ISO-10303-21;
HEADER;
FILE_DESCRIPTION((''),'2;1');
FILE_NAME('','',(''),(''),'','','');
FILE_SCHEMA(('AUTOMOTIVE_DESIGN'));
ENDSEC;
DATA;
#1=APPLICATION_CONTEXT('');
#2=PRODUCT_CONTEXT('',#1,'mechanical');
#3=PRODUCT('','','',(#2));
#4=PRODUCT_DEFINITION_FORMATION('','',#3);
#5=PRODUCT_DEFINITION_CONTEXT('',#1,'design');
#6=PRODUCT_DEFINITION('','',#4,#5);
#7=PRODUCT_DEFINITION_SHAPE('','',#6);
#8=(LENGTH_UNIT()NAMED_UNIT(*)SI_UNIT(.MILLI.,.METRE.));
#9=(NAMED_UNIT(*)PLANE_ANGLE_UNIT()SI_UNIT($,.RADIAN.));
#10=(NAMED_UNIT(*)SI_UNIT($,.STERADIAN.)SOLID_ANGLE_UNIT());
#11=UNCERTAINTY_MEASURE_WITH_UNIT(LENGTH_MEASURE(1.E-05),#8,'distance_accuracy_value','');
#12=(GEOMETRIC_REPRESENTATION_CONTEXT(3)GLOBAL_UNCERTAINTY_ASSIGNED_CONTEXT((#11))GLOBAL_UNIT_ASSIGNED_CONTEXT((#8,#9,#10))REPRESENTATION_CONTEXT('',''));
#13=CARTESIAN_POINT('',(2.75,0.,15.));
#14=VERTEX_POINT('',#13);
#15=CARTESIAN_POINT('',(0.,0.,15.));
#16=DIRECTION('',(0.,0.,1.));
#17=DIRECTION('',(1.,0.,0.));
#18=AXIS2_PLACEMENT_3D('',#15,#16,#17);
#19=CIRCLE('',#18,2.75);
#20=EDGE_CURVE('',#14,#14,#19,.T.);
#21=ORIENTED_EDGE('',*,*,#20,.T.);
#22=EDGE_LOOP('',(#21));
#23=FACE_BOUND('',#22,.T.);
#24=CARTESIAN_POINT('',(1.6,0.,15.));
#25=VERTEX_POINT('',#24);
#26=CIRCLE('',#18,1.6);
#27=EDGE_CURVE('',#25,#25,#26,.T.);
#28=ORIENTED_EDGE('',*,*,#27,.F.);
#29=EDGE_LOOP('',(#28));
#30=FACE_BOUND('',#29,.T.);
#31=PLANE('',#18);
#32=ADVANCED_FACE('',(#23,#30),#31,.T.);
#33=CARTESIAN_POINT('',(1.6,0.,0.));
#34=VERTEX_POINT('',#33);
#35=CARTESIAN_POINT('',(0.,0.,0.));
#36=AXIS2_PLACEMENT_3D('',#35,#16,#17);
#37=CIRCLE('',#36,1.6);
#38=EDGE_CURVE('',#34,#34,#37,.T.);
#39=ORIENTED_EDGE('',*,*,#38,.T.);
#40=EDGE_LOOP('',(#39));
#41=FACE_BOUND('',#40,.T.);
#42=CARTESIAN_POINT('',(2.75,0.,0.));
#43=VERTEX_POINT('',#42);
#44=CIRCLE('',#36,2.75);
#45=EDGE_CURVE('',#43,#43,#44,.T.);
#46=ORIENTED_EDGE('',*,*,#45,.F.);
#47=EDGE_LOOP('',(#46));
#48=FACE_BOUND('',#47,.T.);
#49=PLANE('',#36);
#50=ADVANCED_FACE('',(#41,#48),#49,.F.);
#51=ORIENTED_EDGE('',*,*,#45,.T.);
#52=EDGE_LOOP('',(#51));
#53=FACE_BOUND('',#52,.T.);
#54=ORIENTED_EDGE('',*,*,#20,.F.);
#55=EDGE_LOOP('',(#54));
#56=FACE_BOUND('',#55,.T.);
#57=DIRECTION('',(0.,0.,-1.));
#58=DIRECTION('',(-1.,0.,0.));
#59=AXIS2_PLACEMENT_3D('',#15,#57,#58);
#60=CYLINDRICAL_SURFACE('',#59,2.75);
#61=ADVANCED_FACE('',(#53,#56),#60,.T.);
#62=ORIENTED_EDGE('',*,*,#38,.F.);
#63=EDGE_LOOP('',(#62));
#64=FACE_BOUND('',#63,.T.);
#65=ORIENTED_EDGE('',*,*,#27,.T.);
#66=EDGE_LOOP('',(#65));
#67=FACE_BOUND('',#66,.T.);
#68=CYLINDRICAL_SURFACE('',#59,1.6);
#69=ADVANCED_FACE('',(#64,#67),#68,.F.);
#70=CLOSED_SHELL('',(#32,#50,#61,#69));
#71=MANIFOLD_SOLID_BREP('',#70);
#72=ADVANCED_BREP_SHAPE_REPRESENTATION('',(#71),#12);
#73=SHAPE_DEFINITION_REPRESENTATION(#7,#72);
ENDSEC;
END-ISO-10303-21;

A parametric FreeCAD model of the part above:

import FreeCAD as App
import Part
import Sketcher

doc = App.newDocument("Part")
params = doc.addObject("Spreadsheet::Sheet", "Params")
for row, (alias, value) in enumerate([
    ("sketch1_diameter", "5.5 mm"),
    ("sketch1_diameter2", "3.2 mm"),
    ("pad1_length", "15 mm"),
], start=1):
    params.set(f"A{row}", alias)
    params.set(f"B{row}", "=" + value)
    params.setAlias(f"B{row}", alias)

body = doc.addObject("PartDesign::Body", "Body")

# Sketch on XY plane
sketch1 = doc.addObject("Sketcher::SketchObject", "Sketch")
body.addObject(sketch1)
sketch1.AttachmentSupport = (doc.XY_Plane, [""])
sketch1.MapMode = "FlatFace"
sketch1.addGeometry([
    Part.Circle(App.Vector(0, 0, 0), App.Vector(0, 0, 1), 2.8),
    Part.Circle(App.Vector(0, 0, 0), App.Vector(0, 0, 1), 1.6),
], False)
sketch1.addConstraint([
    Sketcher.Constraint("Coincident", 0, 3, -1, 1),
    Sketcher.Constraint("Coincident", 1, 3, -1, 1),
    Sketcher.Constraint("Diameter", 0, 5.5),
    Sketcher.Constraint("Diameter", 1, 3.2),
])
sketch1.setExpression("Constraints[2]", "Params.sketch1_diameter")
sketch1.setExpression("Constraints[3]", "Params.sketch1_diameter2")
pad1 = doc.addObject("PartDesign::Pad", "Pad")
body.addObject(pad1)
pad1.Profile = sketch1
pad1.setExpression("Length", "Params.pad1_length")

doc.recompute()
